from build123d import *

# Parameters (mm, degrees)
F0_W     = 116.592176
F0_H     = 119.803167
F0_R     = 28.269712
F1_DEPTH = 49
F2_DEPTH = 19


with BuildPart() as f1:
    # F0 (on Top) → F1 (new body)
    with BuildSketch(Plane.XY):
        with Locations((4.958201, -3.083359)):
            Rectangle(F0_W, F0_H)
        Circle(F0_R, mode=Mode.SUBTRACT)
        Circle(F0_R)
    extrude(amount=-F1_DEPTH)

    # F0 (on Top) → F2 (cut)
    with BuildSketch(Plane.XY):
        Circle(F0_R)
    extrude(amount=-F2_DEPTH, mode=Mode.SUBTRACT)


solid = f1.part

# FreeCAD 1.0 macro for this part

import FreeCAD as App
import Part
import Sketcher

V = App.Vector

doc = App.newDocument("Part")
body = doc.addObject("PartDesign::Body", "Body")

sketch1 = doc.addObject("Sketcher::SketchObject", "Sketch")
body.addObject(sketch1)
sketch1.AttachmentSupport = (doc.XY_Plane, [""])
sketch1.MapMode = "FlatFace"
sketch1.addGeometry([
    Part.LineSegment(V(-53.337887, 56.818224, 0), V(-53.337887, -62.984943, 0)),
    Part.LineSegment(V(-53.337887, -62.984943, 0), V(63.254289, -62.984943, 0)),
    Part.LineSegment(V(63.254289, -62.984943, 0), V(63.254289, 56.818224, 0)),
    Part.LineSegment(V(63.254289, 56.818224, 0), V(-53.337887, 56.818224, 0)),
], False)
sketch1.addConstraint([
    Sketcher.Constraint("Coincident", 0, 2, 1, 1),
    Sketcher.Constraint("Coincident", 1, 2, 2, 1),
    Sketcher.Constraint("Coincident", 2, 2, 3, 1),
    Sketcher.Constraint("Coincident", 3, 2, 0, 1),
    Sketcher.Constraint("Vertical", 0),
    Sketcher.Constraint("Horizontal", 1),
    Sketcher.Constraint("Vertical", 2),
    Sketcher.Constraint("Horizontal", 3),
    Sketcher.Constraint("DistanceX", 1, 1, 1, 2, 116.592176),
    Sketcher.Constraint("DistanceY", 0, 2, 0, 1, 119.803167),
    Sketcher.Constraint("DistanceX", -1, 1, 1, 2, 63.254289),
    Sketcher.Constraint("DistanceY", 0, 2, -1, 1, 62.984943),
])
pad1 = doc.addObject("PartDesign::Pad", "Pad")
body.addObject(pad1)
pad1.Profile = sketch1
pad1.Length = 49
pad1.Reversed = True

sketch2 = doc.addObject("Sketcher::SketchObject", "Sketch001")
body.addObject(sketch2)
sketch2.AttachmentSupport = (doc.XY_Plane, [""])
sketch2.MapMode = "FlatFace"
sketch2.addGeometry(Part.Circle(V(0, 0, 0), V(0, 0, 1), 28.269712), False)
sketch2.addConstraint([
    Sketcher.Constraint("Coincident", 0, 3, -1, 1),
    Sketcher.Constraint("Diameter", 0, 56.539424),
])
pocket1 = doc.addObject("PartDesign::Pocket", "Pocket")
body.addObject(pocket1)
pocket1.Profile = sketch2
pocket1.Length = 19

doc.recompute()
